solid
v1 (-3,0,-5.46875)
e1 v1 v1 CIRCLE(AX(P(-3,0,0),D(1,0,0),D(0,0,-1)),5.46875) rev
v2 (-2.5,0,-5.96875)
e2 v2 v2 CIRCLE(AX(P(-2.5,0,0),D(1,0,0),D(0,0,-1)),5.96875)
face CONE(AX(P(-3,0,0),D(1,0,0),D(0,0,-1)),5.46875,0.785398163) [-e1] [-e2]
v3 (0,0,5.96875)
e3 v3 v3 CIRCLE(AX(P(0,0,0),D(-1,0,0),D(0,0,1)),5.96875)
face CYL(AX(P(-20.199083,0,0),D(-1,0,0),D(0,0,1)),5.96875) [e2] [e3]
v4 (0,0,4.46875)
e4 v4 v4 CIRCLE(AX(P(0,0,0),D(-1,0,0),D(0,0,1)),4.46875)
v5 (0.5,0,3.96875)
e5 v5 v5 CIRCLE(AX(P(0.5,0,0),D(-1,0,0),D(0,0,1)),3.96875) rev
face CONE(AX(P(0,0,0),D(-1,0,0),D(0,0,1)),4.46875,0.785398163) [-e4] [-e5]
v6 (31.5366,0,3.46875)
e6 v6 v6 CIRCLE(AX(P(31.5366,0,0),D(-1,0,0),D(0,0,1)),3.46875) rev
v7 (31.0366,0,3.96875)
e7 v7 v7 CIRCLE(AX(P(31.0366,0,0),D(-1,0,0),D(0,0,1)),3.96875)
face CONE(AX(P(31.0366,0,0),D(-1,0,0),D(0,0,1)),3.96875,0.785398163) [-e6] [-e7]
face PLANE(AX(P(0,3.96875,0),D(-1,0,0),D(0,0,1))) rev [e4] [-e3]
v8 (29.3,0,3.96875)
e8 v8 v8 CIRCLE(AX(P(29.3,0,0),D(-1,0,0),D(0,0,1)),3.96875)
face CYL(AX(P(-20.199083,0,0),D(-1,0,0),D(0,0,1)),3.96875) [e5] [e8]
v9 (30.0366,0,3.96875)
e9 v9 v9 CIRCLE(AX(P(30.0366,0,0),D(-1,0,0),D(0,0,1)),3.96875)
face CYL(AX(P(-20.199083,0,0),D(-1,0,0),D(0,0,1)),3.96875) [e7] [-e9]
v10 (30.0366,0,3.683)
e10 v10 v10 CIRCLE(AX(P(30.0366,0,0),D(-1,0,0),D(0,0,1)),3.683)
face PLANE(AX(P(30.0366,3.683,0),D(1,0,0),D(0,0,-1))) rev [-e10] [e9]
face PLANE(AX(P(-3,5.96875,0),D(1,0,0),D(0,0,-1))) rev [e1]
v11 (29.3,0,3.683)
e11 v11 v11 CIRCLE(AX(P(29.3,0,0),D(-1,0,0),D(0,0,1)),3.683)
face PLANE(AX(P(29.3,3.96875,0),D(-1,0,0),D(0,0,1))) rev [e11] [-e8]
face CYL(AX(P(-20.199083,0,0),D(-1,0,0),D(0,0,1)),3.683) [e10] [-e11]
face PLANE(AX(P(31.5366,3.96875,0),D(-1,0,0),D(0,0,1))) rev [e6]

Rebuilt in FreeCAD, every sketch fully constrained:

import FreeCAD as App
import Part
import Sketcher
Q = App.Units.Quantity


def edges_at(feature, points):
    """Names of the edges that pass closest to the given points."""
    edges = feature.Shape.Edges
    near = lambda p: min(range(len(edges)), key=lambda i: edges[i].distToShape(Part.Vertex(*p))[0])
    return sorted({f"Edge{near(p) + 1}" for p in points})

doc = App.newDocument("Part")
body = doc.addObject("PartDesign::Body", "Body")

sketch1 = body.newObject("Sketcher::SketchObject", "Sketch")
sketch1.AttachmentSupport = (doc.getObject("XY_Plane"), [""])
sketch1.MapMode = "FlatFace"
sketch1.addGeometry([
    Part.LineSegment(App.Vector(0, 3.97, 0), App.Vector(0, 5.97, 0)),
    Part.LineSegment(App.Vector(0, 5.97, 0), App.Vector(-3, 5.97, 0)),
    Part.LineSegment(App.Vector(-3, 5.97, 0), App.Vector(-3, 0, 0)),
    Part.LineSegment(App.Vector(-3, 0, 0), App.Vector(31.54, 0, 0)),
    Part.LineSegment(App.Vector(31.54, 0, 0), App.Vector(31.54, 3.97, 0)),
    Part.LineSegment(App.Vector(31.54, 3.97, 0), App.Vector(30.04, 3.97, 0)),
    Part.LineSegment(App.Vector(30.04, 3.97, 0), App.Vector(30.04, 3.68, 0)),
    Part.LineSegment(App.Vector(30.04, 3.68, 0), App.Vector(29.3, 3.68, 0)),
    Part.LineSegment(App.Vector(29.3, 3.68, 0), App.Vector(29.3, 3.97, 0)),
    Part.LineSegment(App.Vector(29.3, 3.97, 0), App.Vector(0, 3.97, 0)),
], False)
sketch1.addConstraint([
    Sketcher.Constraint("Coincident", 0, 2, 1, 1),
    Sketcher.Constraint("Coincident", 1, 2, 2, 1),
    Sketcher.Constraint("Coincident", 2, 2, 3, 1),
    Sketcher.Constraint("Coincident", 3, 2, 4, 1),
    Sketcher.Constraint("Coincident", 4, 2, 5, 1),
    Sketcher.Constraint("Coincident", 5, 2, 6, 1),
    Sketcher.Constraint("Coincident", 6, 2, 7, 1),
    Sketcher.Constraint("Coincident", 7, 2, 8, 1),
    Sketcher.Constraint("Coincident", 8, 2, 9, 1),
    Sketcher.Constraint("Coincident", 9, 2, 0, 1),
    Sketcher.Constraint("Vertical", 0),
    Sketcher.Constraint("Horizontal", 1),
    Sketcher.Constraint("Vertical", 2),
    Sketcher.Constraint("Horizontal", 3),
    Sketcher.Constraint("Vertical", 4),
    Sketcher.Constraint("Horizontal", 5),
    Sketcher.Constraint("Vertical", 6),
    Sketcher.Constraint("Horizontal", 7),
    Sketcher.Constraint("Vertical", 8),
    Sketcher.Constraint("Horizontal", 9),
    Sketcher.Constraint("PointOnObject", 0, 2, -2),
    Sketcher.Constraint("PointOnObject", 2, 2, -1),
    Sketcher.Constraint("Horizontal", 5, 2, 8, 2),
    Sketcher.Constraint("DistanceX", 1, 2, 1, 1, Q("3 mm")),
    Sketcher.Constraint("DistanceY", 0, 1, 0, 2, Q("2 mm")),
    Sketcher.Constraint("DistanceX", 5, 2, 5, 1, Q("1.5 mm")),
    Sketcher.Constraint("DistanceX", 9, 2, 9, 1, Q("29.3 mm")),
    Sketcher.Constraint("DistanceX", 3, 1, 3, 2, Q("34.5366 mm")),
    Sketcher.Constraint("DistanceY", -1, 1, 6, 2, Q("3.683 mm")),
    Sketcher.Constraint("DistanceY", 2, 2, 2, 1, Q("5.96875 mm")),
])
revolution = body.newObject("PartDesign::Revolution", "Revolution")
revolution.Profile = sketch1
revolution.ReferenceAxis = (sketch1, ["H_Axis"])
revolution.Angle = 360
doc.recompute()

chamfer = body.newObject("PartDesign::Chamfer", "Chamfer")
chamfer.Base = (revolution, edges_at(revolution, [(0, -3.969, 0), (-3, -5.969, 0), (31.537, -3.969, 0)]))
chamfer.Size = 0.5

doc.recompute()
